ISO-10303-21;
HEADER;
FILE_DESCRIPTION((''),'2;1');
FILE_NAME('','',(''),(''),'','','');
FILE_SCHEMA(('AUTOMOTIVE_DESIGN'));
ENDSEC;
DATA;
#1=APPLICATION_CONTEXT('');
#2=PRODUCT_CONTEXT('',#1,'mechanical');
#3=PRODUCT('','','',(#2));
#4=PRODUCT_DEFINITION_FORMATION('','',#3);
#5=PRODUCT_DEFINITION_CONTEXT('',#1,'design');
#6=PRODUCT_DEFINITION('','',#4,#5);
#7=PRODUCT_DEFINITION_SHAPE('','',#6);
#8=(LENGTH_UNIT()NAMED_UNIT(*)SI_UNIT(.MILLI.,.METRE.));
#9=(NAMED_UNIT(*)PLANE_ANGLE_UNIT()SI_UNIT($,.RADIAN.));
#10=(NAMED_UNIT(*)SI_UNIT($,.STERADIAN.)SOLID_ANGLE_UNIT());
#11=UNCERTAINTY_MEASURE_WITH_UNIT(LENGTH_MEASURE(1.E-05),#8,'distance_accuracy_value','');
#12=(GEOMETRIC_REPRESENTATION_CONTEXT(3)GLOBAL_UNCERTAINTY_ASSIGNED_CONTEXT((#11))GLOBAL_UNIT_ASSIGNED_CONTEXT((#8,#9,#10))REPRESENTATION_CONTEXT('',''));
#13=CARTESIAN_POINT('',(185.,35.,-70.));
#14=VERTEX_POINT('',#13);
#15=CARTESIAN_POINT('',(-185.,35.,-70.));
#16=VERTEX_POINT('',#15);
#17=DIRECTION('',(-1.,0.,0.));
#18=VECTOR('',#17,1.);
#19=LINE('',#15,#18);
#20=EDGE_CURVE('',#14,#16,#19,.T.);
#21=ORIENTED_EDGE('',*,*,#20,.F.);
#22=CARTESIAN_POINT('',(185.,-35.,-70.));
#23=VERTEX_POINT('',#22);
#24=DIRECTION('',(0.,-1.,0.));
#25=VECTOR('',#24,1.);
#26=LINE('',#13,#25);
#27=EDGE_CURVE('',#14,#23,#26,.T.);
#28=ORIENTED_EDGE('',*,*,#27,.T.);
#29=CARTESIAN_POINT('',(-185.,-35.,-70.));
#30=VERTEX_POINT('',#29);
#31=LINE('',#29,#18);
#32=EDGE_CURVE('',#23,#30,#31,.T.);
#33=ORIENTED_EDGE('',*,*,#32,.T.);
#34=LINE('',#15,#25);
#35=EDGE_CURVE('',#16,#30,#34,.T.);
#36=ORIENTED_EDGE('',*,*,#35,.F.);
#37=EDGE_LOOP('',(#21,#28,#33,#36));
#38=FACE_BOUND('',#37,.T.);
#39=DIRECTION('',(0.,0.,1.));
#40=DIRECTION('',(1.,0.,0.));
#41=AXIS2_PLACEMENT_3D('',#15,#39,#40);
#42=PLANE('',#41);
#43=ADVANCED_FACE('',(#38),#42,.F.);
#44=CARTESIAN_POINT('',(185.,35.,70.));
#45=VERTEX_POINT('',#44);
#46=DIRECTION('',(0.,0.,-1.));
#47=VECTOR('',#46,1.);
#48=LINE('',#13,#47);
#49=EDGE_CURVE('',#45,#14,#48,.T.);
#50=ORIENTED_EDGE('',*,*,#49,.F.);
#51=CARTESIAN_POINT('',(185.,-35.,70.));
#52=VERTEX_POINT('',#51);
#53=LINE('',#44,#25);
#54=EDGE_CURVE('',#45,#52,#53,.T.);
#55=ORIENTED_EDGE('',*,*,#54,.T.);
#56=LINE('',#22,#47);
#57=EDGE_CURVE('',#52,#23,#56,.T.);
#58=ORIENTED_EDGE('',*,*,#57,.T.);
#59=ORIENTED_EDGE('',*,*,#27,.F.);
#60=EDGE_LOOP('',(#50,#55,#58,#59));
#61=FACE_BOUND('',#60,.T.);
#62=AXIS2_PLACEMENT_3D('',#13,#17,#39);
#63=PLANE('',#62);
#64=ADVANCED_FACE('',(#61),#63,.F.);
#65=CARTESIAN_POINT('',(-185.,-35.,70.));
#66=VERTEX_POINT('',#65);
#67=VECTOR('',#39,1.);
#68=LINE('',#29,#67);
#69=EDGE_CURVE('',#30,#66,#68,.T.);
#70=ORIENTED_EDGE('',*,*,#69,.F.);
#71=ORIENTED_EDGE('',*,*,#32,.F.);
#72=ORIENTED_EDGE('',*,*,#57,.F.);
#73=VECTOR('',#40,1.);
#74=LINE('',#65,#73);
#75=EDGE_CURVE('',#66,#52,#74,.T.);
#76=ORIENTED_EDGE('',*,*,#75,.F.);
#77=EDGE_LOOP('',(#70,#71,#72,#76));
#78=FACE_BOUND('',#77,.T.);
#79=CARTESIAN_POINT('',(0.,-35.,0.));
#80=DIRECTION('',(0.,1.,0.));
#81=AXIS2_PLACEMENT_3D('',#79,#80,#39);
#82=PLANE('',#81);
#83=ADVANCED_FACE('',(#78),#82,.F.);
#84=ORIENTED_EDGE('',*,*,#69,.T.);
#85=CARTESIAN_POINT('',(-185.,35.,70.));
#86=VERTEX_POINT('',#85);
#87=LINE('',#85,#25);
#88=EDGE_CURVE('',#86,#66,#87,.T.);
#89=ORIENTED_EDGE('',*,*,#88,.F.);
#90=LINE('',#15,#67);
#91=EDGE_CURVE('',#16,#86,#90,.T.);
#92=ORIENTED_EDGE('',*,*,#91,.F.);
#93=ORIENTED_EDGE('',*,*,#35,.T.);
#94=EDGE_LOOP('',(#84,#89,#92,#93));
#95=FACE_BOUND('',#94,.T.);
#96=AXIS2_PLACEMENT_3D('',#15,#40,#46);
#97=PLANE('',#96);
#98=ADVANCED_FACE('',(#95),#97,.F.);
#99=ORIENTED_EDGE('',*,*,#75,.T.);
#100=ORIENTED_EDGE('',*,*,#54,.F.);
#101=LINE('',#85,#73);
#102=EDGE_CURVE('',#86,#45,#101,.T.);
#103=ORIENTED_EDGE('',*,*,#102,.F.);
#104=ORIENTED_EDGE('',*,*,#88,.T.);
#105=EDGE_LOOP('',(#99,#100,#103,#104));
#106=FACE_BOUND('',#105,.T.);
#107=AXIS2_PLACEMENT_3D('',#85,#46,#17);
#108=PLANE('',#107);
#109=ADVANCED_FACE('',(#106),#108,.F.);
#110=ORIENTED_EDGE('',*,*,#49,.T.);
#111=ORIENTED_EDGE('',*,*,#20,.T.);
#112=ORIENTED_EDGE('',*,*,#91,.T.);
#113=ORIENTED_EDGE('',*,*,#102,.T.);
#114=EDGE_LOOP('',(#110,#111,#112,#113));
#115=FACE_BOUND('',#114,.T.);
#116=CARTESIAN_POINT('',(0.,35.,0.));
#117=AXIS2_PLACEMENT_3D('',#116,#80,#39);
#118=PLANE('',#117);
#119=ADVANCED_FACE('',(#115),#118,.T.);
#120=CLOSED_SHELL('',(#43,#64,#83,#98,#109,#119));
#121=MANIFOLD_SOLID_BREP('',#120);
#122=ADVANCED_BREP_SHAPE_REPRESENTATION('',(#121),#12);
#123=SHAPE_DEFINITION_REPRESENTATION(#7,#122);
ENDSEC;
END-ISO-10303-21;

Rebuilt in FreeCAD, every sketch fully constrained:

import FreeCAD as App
import Part
import Sketcher

V = App.Vector

doc = App.newDocument("Part")
body = doc.addObject("PartDesign::Body", "Body")

sketch1 = doc.addObject("Sketcher::SketchObject", "Sketch")
body.addObject(sketch1)
sketch1.AttachmentSupport = (doc.XZ_Plane, [""])
sketch1.MapMode = "FlatFace"
sketch1.addGeometry(Part.LineSegment(V(-185, -70, 0), V(-185, 70, 0)), False)
sketch1.addGeometry(Part.LineSegment(V(-185, 70, 0), V(185, 70, 0)), False)
sketch1.addGeometry(Part.LineSegment(V(185, 70, 0), V(185, -70, 0)), False)
sketch1.addGeometry(Part.LineSegment(V(185, -70, 0), V(-185, -70, 0)), False)
sketch1.addConstraint(Sketcher.Constraint("Coincident", 0, 2, 1, 1))
sketch1.addConstraint(Sketcher.Constraint("Coincident", 1, 2, 2, 1))
sketch1.addConstraint(Sketcher.Constraint("Coincident", 2, 2, 3, 1))
sketch1.addConstraint(Sketcher.Constraint("Coincident", 3, 2, 0, 1))
sketch1.addConstraint(Sketcher.Constraint("Vertical", 0))
sketch1.addConstraint(Sketcher.Constraint("Horizontal", 1))
sketch1.addConstraint(Sketcher.Constraint("Vertical", 2))
sketch1.addConstraint(Sketcher.Constraint("Horizontal", 3))
sketch1.addConstraint(Sketcher.Constraint("Symmetric", 0, 2, 2, 2, -1, 1))
sketch1.addConstraint(Sketcher.Constraint("DistanceX", 1, 1, 1, 2, 370.0))
sketch1.addConstraint(Sketcher.Constraint("DistanceY", 0, 1, 0, 2, 140.0))
pad1 = doc.addObject("PartDesign::Pad", "Pad")
body.addObject(pad1)
pad1.Profile = sketch1
pad1.Length = 70
pad1.Midplane = True

doc.recompute()
